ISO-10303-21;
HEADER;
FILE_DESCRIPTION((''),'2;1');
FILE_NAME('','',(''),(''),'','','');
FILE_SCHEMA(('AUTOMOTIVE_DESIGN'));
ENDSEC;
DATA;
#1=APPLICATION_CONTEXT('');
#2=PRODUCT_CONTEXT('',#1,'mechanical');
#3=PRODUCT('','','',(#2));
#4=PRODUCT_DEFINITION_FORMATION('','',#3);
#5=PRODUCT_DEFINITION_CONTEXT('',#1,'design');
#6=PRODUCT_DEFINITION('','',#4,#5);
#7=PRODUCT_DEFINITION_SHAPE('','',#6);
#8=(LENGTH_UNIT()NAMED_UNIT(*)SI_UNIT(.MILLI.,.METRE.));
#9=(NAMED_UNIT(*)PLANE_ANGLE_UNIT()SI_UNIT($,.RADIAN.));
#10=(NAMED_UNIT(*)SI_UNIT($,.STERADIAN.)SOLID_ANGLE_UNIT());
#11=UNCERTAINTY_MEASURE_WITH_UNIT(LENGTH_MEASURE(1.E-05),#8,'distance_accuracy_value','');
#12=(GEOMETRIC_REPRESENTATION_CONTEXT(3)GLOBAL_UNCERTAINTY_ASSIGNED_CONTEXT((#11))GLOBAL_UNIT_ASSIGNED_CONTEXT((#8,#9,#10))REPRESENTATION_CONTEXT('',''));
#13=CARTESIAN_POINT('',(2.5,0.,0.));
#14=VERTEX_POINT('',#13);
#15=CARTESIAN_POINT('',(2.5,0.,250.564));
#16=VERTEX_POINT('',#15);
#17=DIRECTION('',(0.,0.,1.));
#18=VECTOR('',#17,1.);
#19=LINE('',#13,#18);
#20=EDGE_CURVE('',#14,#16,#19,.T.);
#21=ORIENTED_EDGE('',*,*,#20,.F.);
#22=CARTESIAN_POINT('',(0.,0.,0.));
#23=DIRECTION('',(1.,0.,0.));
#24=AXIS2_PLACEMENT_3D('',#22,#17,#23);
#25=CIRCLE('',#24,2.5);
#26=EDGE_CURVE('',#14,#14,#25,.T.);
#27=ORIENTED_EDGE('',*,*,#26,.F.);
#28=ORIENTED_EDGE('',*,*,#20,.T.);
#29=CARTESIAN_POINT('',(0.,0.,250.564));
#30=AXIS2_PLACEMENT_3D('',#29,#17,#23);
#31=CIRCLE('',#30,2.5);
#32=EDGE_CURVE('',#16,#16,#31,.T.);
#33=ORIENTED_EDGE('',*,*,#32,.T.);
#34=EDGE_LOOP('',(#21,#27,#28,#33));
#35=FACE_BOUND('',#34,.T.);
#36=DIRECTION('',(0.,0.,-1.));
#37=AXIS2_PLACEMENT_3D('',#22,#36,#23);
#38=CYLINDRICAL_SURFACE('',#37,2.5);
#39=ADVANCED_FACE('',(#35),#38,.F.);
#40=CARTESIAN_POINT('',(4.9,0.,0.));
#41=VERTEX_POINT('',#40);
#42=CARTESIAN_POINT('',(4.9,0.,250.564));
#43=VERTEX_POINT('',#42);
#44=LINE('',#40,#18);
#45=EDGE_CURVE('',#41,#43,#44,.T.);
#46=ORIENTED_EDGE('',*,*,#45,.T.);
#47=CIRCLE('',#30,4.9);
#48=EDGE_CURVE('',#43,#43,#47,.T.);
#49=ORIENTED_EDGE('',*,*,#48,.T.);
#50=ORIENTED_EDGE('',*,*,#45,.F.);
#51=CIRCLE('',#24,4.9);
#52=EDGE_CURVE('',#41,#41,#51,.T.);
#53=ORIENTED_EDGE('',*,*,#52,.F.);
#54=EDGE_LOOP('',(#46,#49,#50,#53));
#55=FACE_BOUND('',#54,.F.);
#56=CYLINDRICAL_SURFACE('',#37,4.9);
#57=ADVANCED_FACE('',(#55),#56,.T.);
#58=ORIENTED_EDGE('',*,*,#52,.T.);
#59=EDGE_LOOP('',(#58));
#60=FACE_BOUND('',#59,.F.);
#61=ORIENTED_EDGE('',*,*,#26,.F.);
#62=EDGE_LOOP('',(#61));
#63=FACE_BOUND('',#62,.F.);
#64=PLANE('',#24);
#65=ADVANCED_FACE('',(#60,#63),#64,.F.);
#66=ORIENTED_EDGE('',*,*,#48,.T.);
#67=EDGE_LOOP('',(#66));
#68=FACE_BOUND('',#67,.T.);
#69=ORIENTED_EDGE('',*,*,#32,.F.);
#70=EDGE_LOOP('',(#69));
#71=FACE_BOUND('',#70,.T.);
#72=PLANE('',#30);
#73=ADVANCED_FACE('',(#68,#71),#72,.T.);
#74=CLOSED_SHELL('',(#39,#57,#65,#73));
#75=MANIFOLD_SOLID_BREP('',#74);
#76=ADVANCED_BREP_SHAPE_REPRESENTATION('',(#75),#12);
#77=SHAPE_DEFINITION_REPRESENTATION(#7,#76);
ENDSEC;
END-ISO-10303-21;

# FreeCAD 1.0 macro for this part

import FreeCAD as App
import Part
import Sketcher
Q = App.Units.Quantity

doc = App.newDocument("Part")
body = doc.addObject("PartDesign::Body", "Body")

sketch1 = body.newObject("Sketcher::SketchObject", "Sketch")
sketch1.AttachmentSupport = (doc.getObject("XY_Plane"), [""])
sketch1.MapMode = "FlatFace"
sketch1.addGeometry(Part.Circle(App.Vector(0, 0, 0), App.Vector(0, 0, 1), 4.9), False)
sketch1.addGeometry(Part.Circle(App.Vector(0, 0, 0), App.Vector(0, 0, 1), 2.5), False)
sketch1.addConstraint(Sketcher.Constraint("Coincident", 0, 3, -1, 1))
sketch1.addConstraint(Sketcher.Constraint("Coincident", 1, 3, -1, 1))
sketch1.addConstraint(Sketcher.Constraint("Diameter", 0, Q("9.8 mm")))
sketch1.addConstraint(Sketcher.Constraint("Diameter", 1, Q("5 mm")))
pad1 = body.newObject("PartDesign::Pad", "Pad")
pad1.Profile = sketch1
pad1.Length = 250.564

doc.recompute()
